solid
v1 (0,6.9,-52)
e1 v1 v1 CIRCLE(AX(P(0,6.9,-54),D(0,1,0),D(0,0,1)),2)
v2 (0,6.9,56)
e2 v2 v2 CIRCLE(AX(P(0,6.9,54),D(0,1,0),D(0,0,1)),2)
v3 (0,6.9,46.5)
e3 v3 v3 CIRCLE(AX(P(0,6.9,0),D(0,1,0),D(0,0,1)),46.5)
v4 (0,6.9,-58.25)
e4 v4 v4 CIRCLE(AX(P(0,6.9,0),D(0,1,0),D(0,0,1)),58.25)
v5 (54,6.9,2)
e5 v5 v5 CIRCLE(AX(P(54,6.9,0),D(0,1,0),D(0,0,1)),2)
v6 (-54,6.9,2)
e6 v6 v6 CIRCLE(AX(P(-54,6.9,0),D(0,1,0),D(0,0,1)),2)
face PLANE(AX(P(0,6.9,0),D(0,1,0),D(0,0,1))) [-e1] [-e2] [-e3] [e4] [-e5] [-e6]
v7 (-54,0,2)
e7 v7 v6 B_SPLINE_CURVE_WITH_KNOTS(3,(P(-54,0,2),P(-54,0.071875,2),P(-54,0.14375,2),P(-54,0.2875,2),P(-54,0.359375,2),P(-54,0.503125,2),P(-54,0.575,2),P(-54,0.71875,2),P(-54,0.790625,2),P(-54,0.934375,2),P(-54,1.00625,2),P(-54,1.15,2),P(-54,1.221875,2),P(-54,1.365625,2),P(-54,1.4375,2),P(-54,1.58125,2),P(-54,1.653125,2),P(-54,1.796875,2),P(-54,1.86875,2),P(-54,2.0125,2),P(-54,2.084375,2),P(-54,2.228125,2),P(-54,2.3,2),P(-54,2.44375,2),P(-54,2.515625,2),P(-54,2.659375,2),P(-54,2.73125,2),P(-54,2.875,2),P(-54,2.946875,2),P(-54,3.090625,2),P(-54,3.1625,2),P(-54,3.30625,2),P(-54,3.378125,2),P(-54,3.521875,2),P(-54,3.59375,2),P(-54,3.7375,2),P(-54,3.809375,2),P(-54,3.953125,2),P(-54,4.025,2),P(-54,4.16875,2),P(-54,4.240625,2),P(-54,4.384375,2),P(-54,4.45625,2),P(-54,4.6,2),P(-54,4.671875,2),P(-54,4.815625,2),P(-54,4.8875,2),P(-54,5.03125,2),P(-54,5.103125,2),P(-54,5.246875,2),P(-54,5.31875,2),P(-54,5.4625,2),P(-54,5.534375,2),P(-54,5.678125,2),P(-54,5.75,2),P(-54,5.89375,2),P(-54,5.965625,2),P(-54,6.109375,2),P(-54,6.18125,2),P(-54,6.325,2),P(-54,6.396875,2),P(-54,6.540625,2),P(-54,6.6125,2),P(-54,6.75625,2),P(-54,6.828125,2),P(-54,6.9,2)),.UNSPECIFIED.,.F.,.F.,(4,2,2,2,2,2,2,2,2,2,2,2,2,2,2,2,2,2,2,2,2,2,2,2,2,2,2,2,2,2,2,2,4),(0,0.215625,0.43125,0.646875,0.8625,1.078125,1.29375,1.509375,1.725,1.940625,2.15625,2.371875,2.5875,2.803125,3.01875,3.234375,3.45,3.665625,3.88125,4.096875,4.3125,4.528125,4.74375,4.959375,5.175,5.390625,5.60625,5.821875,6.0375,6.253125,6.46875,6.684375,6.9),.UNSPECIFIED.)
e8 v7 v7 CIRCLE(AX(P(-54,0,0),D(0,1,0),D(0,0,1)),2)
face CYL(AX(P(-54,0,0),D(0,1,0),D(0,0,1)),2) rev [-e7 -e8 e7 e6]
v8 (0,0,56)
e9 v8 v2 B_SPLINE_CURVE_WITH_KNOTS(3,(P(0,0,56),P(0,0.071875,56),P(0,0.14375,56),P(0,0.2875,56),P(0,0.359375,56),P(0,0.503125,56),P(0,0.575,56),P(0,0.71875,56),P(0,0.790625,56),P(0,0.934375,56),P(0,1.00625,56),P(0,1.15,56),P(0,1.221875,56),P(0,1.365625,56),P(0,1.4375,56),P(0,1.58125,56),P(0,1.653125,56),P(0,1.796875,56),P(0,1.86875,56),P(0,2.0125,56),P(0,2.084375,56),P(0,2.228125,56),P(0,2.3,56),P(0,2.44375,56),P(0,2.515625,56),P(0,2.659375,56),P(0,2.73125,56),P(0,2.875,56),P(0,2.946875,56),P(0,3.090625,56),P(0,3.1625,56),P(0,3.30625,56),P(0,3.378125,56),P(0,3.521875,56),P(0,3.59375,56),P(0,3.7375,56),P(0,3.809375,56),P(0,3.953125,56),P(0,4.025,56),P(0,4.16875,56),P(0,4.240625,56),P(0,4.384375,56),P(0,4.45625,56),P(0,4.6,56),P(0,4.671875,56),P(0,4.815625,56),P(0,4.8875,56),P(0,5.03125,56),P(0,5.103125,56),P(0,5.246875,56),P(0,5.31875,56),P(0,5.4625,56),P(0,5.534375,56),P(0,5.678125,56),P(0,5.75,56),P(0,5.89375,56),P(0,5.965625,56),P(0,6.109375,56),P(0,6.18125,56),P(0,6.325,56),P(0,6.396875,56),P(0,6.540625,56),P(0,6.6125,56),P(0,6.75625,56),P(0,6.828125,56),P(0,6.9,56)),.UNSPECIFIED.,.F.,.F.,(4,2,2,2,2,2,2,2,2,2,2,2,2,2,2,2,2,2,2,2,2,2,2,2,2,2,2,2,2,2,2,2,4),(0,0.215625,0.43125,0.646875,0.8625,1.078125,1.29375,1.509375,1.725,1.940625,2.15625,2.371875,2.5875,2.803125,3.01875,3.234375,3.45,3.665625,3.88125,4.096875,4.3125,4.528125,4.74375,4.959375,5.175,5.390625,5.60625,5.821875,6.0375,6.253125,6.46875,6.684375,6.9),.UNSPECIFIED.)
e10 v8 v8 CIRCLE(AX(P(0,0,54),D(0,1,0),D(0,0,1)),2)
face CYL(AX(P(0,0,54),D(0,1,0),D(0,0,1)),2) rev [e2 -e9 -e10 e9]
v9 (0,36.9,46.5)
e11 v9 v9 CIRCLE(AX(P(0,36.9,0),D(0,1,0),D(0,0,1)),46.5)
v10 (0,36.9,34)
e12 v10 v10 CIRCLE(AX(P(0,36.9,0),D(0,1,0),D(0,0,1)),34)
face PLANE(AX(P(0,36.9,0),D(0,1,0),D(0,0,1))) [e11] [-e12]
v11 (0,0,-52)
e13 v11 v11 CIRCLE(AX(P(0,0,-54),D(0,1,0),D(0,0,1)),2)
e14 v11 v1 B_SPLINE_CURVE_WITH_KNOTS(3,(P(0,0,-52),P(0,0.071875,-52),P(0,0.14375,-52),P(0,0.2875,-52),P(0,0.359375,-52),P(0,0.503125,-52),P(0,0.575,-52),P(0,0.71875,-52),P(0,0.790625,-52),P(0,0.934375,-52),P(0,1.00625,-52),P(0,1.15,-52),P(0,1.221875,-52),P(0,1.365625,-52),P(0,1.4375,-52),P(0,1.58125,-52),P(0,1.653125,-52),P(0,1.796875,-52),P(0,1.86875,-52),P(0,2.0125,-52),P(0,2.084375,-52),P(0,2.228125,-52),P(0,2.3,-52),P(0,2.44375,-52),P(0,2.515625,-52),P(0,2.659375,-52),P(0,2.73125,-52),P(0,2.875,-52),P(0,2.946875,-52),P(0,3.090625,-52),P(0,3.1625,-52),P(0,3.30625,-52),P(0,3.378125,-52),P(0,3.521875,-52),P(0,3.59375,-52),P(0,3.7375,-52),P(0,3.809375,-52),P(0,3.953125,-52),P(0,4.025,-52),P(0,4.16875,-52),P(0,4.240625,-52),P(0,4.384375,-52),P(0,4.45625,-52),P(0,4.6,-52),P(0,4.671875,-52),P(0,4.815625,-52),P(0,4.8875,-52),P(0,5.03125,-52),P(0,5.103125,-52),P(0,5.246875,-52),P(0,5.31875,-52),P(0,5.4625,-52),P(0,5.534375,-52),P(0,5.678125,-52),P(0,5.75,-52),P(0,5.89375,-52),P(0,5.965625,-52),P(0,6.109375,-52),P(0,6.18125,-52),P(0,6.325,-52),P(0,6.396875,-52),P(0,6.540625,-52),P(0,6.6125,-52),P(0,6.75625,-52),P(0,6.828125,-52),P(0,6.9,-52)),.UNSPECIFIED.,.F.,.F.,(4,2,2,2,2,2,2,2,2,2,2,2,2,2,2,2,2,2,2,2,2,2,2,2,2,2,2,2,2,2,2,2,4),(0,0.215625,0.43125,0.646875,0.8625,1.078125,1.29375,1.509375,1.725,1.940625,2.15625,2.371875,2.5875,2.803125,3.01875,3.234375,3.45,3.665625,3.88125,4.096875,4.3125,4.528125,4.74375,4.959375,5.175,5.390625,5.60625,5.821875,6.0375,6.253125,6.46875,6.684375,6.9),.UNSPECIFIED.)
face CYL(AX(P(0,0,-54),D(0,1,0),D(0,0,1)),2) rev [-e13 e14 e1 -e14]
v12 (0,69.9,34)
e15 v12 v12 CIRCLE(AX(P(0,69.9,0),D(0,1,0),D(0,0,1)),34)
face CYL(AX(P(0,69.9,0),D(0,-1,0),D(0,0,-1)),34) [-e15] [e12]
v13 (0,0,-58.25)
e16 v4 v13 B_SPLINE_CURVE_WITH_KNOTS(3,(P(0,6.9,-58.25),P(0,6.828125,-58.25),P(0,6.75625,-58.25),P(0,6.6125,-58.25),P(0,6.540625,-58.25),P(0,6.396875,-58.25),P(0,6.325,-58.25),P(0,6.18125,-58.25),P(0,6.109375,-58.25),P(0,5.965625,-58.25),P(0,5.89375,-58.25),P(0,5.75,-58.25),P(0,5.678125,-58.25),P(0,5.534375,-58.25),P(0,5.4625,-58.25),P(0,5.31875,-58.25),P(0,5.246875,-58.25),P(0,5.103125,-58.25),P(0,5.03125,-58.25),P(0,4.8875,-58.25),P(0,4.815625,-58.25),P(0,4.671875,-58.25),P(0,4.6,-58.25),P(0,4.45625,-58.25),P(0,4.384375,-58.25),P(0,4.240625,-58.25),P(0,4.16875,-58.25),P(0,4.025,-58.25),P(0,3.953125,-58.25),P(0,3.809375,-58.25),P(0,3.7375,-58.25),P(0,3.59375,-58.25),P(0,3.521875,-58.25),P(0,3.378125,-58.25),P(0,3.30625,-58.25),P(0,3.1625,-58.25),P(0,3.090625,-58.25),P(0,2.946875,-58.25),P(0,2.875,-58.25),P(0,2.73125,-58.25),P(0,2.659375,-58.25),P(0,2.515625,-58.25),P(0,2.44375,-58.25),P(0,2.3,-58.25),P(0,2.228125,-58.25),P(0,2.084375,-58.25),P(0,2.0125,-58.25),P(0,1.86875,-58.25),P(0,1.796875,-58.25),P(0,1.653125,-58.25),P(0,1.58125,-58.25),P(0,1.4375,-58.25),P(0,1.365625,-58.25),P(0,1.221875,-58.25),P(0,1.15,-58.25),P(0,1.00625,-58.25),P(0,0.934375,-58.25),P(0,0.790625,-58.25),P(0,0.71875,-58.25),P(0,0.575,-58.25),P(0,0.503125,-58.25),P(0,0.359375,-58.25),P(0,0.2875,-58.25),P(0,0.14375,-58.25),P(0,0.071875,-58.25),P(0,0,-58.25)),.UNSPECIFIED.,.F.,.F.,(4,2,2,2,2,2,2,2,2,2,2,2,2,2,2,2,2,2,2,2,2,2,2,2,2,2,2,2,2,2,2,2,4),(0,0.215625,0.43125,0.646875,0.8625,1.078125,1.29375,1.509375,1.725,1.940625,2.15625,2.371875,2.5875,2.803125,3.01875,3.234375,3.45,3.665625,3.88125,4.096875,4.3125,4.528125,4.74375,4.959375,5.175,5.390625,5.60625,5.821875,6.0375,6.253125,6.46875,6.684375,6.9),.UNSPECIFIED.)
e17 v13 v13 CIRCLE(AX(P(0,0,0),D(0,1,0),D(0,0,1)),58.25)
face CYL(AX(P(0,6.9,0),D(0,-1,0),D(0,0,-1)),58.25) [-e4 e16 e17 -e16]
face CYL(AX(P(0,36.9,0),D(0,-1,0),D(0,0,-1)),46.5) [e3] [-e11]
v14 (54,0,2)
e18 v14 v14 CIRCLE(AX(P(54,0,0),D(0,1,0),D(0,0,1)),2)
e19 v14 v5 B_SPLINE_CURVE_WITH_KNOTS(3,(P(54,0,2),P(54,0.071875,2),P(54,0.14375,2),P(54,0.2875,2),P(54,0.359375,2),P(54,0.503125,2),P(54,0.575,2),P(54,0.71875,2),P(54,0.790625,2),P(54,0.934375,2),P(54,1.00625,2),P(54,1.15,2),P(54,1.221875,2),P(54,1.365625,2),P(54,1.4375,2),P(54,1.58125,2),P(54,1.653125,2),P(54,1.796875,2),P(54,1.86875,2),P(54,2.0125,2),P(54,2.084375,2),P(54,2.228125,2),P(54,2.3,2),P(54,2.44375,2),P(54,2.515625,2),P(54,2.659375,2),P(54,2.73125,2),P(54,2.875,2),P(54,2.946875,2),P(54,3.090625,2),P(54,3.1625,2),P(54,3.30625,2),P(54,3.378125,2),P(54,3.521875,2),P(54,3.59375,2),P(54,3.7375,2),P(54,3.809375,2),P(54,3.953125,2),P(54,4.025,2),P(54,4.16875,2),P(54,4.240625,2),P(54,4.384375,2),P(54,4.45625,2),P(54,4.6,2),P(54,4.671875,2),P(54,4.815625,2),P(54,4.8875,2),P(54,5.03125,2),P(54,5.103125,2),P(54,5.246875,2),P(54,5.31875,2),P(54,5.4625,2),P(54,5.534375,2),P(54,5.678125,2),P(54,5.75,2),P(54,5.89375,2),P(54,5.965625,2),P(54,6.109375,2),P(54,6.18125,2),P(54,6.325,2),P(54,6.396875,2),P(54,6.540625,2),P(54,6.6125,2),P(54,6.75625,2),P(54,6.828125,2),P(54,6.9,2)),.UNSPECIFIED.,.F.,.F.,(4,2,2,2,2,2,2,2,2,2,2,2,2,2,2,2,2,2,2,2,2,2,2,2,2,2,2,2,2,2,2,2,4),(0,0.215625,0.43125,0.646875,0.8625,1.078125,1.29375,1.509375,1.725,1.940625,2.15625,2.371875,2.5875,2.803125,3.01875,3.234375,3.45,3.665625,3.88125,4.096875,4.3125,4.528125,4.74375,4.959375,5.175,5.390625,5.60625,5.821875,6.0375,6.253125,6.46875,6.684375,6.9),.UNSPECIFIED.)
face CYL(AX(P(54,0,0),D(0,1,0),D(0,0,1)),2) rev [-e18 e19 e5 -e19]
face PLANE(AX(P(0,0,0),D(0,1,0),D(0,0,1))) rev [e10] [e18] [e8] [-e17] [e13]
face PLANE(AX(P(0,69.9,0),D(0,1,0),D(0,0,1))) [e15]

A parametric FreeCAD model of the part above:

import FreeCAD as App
import Part
import Sketcher

V = App.Vector

doc = App.newDocument("Part")
body = doc.addObject("PartDesign::Body", "Body")

sketch1 = doc.addObject("Sketcher::SketchObject", "Sketch")
body.addObject(sketch1)
sketch1.AttachmentSupport = (doc.XZ_Plane, [""])
sketch1.MapMode = "FlatFace"
sketch1.addGeometry(Part.Circle(V(0, 0, 0), V(0, 0, 1), 58), False)
sketch1.addConstraint([
    Sketcher.Constraint("Coincident", 0, 3, -1, 1),
    Sketcher.Constraint("Diameter", 0, 116.5),
])
pad1 = doc.addObject("PartDesign::Pad", "Pad")
body.addObject(pad1)
pad1.Profile = sketch1
pad1.Length = 6.9
pad1.Reversed = True

sketch2 = doc.addObject("Sketcher::SketchObject", "Sketch001")
body.addObject(sketch2)
sketch2.AttachmentSupport = (doc.XZ_Plane, [""])
sketch2.MapMode = "FlatFace"
sketch2.AttachmentOffset = App.Placement(V(0, 0, -6.9), App.Rotation())
sketch2.addGeometry([
    Part.Circle(V(0, -54, 0), V(0, 0, 1), 2),
    Part.Circle(V(-54, 0, 0), V(0, 0, 1), 2),
    Part.Circle(V(0, 54, 0), V(0, 0, 1), 2),
    Part.Circle(V(54, 0, 0), V(0, 0, 1), 2),
], False)
sketch2.addConstraint([
    Sketcher.Constraint("Equal", 0, 1),
    Sketcher.Constraint("Equal", 1, 2),
    Sketcher.Constraint("Equal", 2, 3),
    Sketcher.Constraint("Symmetric", 0, 3, 2, 3, -1, 1),
    Sketcher.Constraint("Symmetric", 1, 3, 3, 3, -1, 1),
    Sketcher.Constraint("PointOnObject", 0, 3, -2),
    Sketcher.Constraint("PointOnObject", 1, 3, -1),
    Sketcher.Constraint("Diameter", 0, 4.0),
    Sketcher.Constraint("DistanceY", 0, 3, -1, 1, 54.0),
    Sketcher.Constraint("DistanceX", 1, 3, -1, 1, 54.0),
])
pocket1 = doc.addObject("PartDesign::Pocket", "Pocket")
body.addObject(pocket1)
pocket1.Profile = sketch2
pocket1.Length = 6.9
pocket1.Reversed = True

sketch3 = doc.addObject("Sketcher::SketchObject", "Sketch002")
body.addObject(sketch3)
sketch3.AttachmentSupport = (doc.XZ_Plane, [""])
sketch3.MapMode = "FlatFace"
sketch3.AttachmentOffset = App.Placement(V(0, 0, -6.9), App.Rotation())
sketch3.addGeometry(Part.Circle(V(0, 0, 0), V(0, 0, 1), 46), False)
sketch3.addConstraint([
    Sketcher.Constraint("Coincident", 0, 3, -1, 1),
    Sketcher.Constraint("Diameter", 0, 93.0),
])
pad2 = doc.addObject("PartDesign::Pad", "Pad001")
body.addObject(pad2)
pad2.Profile = sketch3
pad2.Length = 30
pad2.Reversed = True

sketch4 = doc.addObject("Sketcher::SketchObject", "Sketch003")
body.addObject(sketch4)
sketch4.AttachmentSupport = (doc.XZ_Plane, [""])
sketch4.MapMode = "FlatFace"
sketch4.AttachmentOffset = App.Placement(V(0, 0, -36.9), App.Rotation())
sketch4.addGeometry(Part.Circle(V(0, 0, 0), V(0, 0, 1), 34), False)
sketch4.addConstraint([
    Sketcher.Constraint("Coincident", 0, 3, -1, 1),
    Sketcher.Constraint("Diameter", 0, 68.0),
])
pad3 = doc.addObject("PartDesign::Pad", "Pad002")
body.addObject(pad3)
pad3.Profile = sketch4
pad3.Length = 33
pad3.Reversed = True

doc.recompute()
